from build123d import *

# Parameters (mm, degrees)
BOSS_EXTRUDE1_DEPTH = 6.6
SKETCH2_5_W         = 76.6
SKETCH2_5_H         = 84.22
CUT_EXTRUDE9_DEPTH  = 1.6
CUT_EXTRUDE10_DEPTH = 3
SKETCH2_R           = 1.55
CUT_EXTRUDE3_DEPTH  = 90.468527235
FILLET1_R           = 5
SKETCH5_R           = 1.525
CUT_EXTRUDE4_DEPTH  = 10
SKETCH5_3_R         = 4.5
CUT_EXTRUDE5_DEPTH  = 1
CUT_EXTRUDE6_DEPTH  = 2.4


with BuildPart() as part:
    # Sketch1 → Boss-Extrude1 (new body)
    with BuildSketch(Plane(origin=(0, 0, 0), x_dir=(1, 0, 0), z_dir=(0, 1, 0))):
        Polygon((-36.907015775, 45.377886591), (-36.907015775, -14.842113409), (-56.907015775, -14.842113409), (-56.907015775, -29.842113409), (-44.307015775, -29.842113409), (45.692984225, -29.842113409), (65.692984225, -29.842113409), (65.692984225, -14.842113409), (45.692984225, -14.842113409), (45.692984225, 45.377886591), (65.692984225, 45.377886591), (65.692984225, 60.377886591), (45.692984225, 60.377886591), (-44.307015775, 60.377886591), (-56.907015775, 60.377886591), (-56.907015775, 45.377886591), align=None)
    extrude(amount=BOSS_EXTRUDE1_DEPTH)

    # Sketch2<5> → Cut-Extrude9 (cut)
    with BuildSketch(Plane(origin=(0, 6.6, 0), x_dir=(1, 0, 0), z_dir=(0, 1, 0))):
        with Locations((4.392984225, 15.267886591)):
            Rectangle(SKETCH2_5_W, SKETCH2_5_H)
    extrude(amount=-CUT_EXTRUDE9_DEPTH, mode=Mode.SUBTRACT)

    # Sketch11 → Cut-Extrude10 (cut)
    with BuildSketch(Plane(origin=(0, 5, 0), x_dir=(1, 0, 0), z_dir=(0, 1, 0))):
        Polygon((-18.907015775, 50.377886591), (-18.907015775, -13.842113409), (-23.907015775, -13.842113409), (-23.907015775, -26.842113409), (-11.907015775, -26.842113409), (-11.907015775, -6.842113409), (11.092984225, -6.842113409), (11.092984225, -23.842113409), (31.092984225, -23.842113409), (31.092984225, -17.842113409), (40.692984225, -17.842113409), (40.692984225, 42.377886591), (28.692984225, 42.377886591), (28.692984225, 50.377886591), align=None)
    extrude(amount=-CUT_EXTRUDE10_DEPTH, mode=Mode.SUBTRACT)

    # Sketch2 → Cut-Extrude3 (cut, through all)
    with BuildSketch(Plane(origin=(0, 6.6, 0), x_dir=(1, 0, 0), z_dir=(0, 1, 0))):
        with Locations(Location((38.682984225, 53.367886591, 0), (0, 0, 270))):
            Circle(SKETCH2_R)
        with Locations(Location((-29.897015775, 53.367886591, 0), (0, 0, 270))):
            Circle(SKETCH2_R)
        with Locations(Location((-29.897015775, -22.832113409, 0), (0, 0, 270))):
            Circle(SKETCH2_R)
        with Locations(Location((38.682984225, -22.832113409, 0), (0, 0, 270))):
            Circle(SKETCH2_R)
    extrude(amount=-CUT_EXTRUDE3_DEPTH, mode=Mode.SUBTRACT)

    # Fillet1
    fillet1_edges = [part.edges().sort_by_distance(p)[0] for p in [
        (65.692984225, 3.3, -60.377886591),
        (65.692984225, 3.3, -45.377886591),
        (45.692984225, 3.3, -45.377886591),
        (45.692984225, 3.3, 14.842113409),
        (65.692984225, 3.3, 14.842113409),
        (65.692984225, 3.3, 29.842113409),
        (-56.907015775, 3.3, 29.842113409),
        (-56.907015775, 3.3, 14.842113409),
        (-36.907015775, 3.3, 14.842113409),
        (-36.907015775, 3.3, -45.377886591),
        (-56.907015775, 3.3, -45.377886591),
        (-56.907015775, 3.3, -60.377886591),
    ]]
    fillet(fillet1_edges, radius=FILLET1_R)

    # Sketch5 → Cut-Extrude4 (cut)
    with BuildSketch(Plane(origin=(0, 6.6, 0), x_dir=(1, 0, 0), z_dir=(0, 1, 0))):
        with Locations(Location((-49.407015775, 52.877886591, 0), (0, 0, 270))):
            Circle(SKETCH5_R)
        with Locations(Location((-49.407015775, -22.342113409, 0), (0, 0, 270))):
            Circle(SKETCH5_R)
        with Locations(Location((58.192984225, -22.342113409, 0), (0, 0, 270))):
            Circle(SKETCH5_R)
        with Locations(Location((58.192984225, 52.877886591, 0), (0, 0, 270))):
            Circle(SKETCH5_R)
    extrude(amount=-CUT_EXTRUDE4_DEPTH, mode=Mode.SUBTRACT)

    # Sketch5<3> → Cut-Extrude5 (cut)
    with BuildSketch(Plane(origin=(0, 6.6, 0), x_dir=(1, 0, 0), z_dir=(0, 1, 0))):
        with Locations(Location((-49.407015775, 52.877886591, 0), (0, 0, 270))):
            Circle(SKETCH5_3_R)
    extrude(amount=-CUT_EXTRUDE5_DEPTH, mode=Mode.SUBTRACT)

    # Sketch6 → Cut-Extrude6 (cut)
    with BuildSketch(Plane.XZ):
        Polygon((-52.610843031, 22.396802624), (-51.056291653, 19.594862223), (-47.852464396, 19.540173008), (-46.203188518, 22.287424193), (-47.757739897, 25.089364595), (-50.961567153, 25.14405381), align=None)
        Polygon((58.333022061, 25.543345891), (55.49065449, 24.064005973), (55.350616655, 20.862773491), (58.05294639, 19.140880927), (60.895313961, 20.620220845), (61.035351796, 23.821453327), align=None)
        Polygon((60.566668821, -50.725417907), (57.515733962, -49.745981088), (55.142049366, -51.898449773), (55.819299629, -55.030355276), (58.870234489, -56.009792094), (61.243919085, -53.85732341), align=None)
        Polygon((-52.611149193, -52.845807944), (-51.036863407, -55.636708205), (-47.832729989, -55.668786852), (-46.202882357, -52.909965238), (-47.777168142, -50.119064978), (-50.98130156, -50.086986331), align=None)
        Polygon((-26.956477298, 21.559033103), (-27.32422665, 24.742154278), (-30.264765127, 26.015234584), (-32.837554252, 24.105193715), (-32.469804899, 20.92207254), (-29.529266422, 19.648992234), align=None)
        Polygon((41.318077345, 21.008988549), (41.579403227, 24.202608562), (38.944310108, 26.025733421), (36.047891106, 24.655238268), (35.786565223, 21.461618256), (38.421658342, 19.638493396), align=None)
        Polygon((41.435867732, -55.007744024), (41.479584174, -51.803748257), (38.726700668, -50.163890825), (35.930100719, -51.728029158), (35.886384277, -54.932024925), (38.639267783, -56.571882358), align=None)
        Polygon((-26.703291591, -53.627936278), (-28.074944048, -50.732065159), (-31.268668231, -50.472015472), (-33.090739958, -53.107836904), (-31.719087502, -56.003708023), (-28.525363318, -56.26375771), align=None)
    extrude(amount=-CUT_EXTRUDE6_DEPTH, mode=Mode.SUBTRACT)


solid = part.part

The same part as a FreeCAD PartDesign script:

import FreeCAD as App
import Part
import Sketcher
from FreeCAD import Vector


def edges_at(feature, points):
    """Names of the edges that pass closest to the given points."""
    edges = feature.Shape.Edges
    near = lambda p: min(range(len(edges)), key=lambda i: edges[i].distToShape(Part.Vertex(*p))[0])
    return sorted({f"Edge{near(p) + 1}" for p in points})

doc = App.newDocument("Part")
body = doc.addObject("PartDesign::Body", "Body")

# Sketch on XZ plane
sketch1 = body.newObject("Sketcher::SketchObject", "Sketch")
sketch1.AttachmentSupport = (doc.getObject("XZ_Plane"), [""])
sketch1.MapMode = "FlatFace"
sketch1.addGeometry([
    Part.LineSegment(Vector(-37, -45, 0), Vector(-37, 15, 0)),  # 0
    Part.LineSegment(Vector(-37, 15, 0), Vector(-57, 15, 0)),  # 1
    Part.LineSegment(Vector(-57, 15, 0), Vector(-57, 30, 0)),  # 2
    Part.LineSegment(Vector(-57, 30, 0), Vector(66, 30, 0)),  # 3
    Part.LineSegment(Vector(66, 30, 0), Vector(66, 15, 0)),  # 4
    Part.LineSegment(Vector(66, 15, 0), Vector(46, 15, 0)),  # 5
    Part.LineSegment(Vector(46, 15, 0), Vector(46, -45, 0)),  # 6
    Part.LineSegment(Vector(46, -45, 0), Vector(66, -45, 0)),  # 7
    Part.LineSegment(Vector(66, -45, 0), Vector(66, -60, 0)),  # 8
    Part.LineSegment(Vector(66, -60, 0), Vector(-57, -60, 0)),  # 9
    Part.LineSegment(Vector(-57, -60, 0), Vector(-57, -45, 0)),  # 10
    Part.LineSegment(Vector(-57, -45, 0), Vector(-37, -45, 0)),  # 11
], False)
sketch1.addConstraint([
    Sketcher.Constraint("Coincident", 0, 2, 1, 1),
    Sketcher.Constraint("Coincident", 1, 2, 2, 1),
    Sketcher.Constraint("Coincident", 2, 2, 3, 1),
    Sketcher.Constraint("Coincident", 3, 2, 4, 1),
    Sketcher.Constraint("Coincident", 4, 2, 5, 1),
    Sketcher.Constraint("Coincident", 5, 2, 6, 1),
    Sketcher.Constraint("Coincident", 6, 2, 7, 1),
    Sketcher.Constraint("Coincident", 7, 2, 8, 1),
    Sketcher.Constraint("Coincident", 8, 2, 9, 1),
    Sketcher.Constraint("Coincident", 9, 2, 10, 1),
    Sketcher.Constraint("Coincident", 10, 2, 11, 1),
    Sketcher.Constraint("Coincident", 11, 2, 0, 1),
    Sketcher.Constraint("Vertical", 0),
    Sketcher.Constraint("Horizontal", 1),
    Sketcher.Constraint("Vertical", 2),
    Sketcher.Constraint("Horizontal", 3),
    Sketcher.Constraint("Vertical", 4),
    Sketcher.Constraint("Horizontal", 5),
    Sketcher.Constraint("Vertical", 6),
    Sketcher.Constraint("Horizontal", 7),
    Sketcher.Constraint("Vertical", 8),
    Sketcher.Constraint("Horizontal", 9),
    Sketcher.Constraint("Vertical", 10),
    Sketcher.Constraint("Horizontal", 11),
    Sketcher.Constraint("Horizontal", 1, 2, 4, 2),
    Sketcher.Constraint("Horizontal", 7, 2, 10, 2),
    Sketcher.Constraint("Vertical", 4, 2, 7, 2),
    Sketcher.Constraint("Vertical", 2, 2, 9, 2),
    Sketcher.Constraint("Equal", 1, 5),
    Sketcher.Constraint("Equal", 4, 8),
    Sketcher.Constraint("DistanceX", 1, 2, 1, 1, 20.0),
    Sketcher.Constraint("DistanceY", 2, 1, 2, 2, 15.0),
    Sketcher.Constraint("DistanceX", 3, 1, 3, 2, 122.6),
    Sketcher.Constraint("DistanceY", 0, 1, 0, 2, 60.22),
    Sketcher.Constraint("DistanceX", 0, 2, -1, 1, 36.907016),
    Sketcher.Constraint("DistanceY", -1, 1, 0, 2, 14.842113),
])
pad1 = body.newObject("PartDesign::Pad", "Pad")
pad1.Profile = sketch1
pad1.Length = 6.6
pad1.Reversed = True

# Sketch on XZ plane
sketch2 = body.newObject("Sketcher::SketchObject", "Sketch001")
sketch2.AttachmentSupport = (doc.getObject("XZ_Plane"), [""])
sketch2.MapMode = "FlatFace"
sketch2.AttachmentOffset = App.Placement(Vector(0, 0, -6.6), App.Rotation())
sketch2.addGeometry([
    Part.LineSegment(Vector(-34, -57, 0), Vector(-34, 27, 0)),
    Part.LineSegment(Vector(-34, 27, 0), Vector(43, 27, 0)),
    Part.LineSegment(Vector(43, 27, 0), Vector(43, -57, 0)),
    Part.LineSegment(Vector(43, -57, 0), Vector(-34, -57, 0)),
], False)
sketch2.addConstraint([
    Sketcher.Constraint("Coincident", 0, 2, 1, 1),
    Sketcher.Constraint("Coincident", 1, 2, 2, 1),
    Sketcher.Constraint("Coincident", 2, 2, 3, 1),
    Sketcher.Constraint("Coincident", 3, 2, 0, 1),
    Sketcher.Constraint("Vertical", 0),
    Sketcher.Constraint("Horizontal", 1),
    Sketcher.Constraint("Vertical", 2),
    Sketcher.Constraint("Horizontal", 3),
    Sketcher.Constraint("DistanceX", 1, 1, 1, 2, 76.6),
    Sketcher.Constraint("DistanceY", 0, 1, 0, 2, 84.22),
    Sketcher.Constraint("DistanceX", 0, 2, -1, 1, 33.907016),
    Sketcher.Constraint("DistanceY", -1, 1, 0, 2, 26.842113),
])
pocket1 = body.newObject("PartDesign::Pocket", "Pocket")
pocket1.Profile = sketch2
pocket1.Length = 1.6
pocket1.Reversed = True

# Sketch on XZ plane
sketch3 = body.newObject("Sketcher::SketchObject", "Sketch002")
sketch3.AttachmentSupport = (doc.getObject("XZ_Plane"), [""])
sketch3.MapMode = "FlatFace"
sketch3.AttachmentOffset = App.Placement(Vector(0, 0, -5), App.Rotation())
sketch3.addGeometry([
    Part.LineSegment(Vector(-19, -50, 0), Vector(-19, 14, 0)),  # 0
    Part.LineSegment(Vector(-19, 14, 0), Vector(-24, 14, 0)),  # 1
    Part.LineSegment(Vector(-24, 14, 0), Vector(-24, 27, 0)),  # 2
    Part.LineSegment(Vector(-24, 27, 0), Vector(-12, 27, 0)),  # 3
    Part.LineSegment(Vector(-12, 27, 0), Vector(-12, 7, 0)),  # 4
    Part.LineSegment(Vector(-12, 7, 0), Vector(11, 7, 0)),  # 5
    Part.LineSegment(Vector(11, 7, 0), Vector(11, 24, 0)),  # 6
    Part.LineSegment(Vector(11, 24, 0), Vector(31, 24, 0)),  # 7
    Part.LineSegment(Vector(31, 24, 0), Vector(31, 18, 0)),  # 8
    Part.LineSegment(Vector(31, 18, 0), Vector(41, 18, 0)),  # 9
    Part.LineSegment(Vector(41, 18, 0), Vector(41, -42, 0)),  # 10
    Part.LineSegment(Vector(41, -42, 0), Vector(29, -42, 0)),  # 11
    Part.LineSegment(Vector(29, -42, 0), Vector(29, -50, 0)),  # 12
    Part.LineSegment(Vector(29, -50, 0), Vector(-19, -50, 0)),  # 13
], False)
sketch3.addConstraint([
    Sketcher.Constraint("Coincident", 0, 2, 1, 1),
    Sketcher.Constraint("Coincident", 1, 2, 2, 1),
    Sketcher.Constraint("Coincident", 2, 2, 3, 1),
    Sketcher.Constraint("Coincident", 3, 2, 4, 1),
    Sketcher.Constraint("Coincident", 4, 2, 5, 1),
    Sketcher.Constraint("Coincident", 5, 2, 6, 1),
    Sketcher.Constraint("Coincident", 6, 2, 7, 1),
    Sketcher.Constraint("Coincident", 7, 2, 8, 1),
    Sketcher.Constraint("Coincident", 8, 2, 9, 1),
    Sketcher.Constraint("Coincident", 9, 2, 10, 1),
    Sketcher.Constraint("Coincident", 10, 2, 11, 1),
    Sketcher.Constraint("Coincident", 11, 2, 12, 1),
    Sketcher.Constraint("Coincident", 12, 2, 13, 1),
    Sketcher.Constraint("Coincident", 13, 2, 0, 1),
    Sketcher.Constraint("Vertical", 0),
    Sketcher.Constraint("Horizontal", 1),
    Sketcher.Constraint("Vertical", 2),
    Sketcher.Constraint("Horizontal", 3),
    Sketcher.Constraint("Vertical", 4),
    Sketcher.Constraint("Horizontal", 5),
    Sketcher.Constraint("Vertical", 6),
    Sketcher.Constraint("Horizontal", 7),
    Sketcher.Constraint("Vertical", 8),
    Sketcher.Constraint("Horizontal", 9),
    Sketcher.Constraint("Vertical", 10),
    Sketcher.Constraint("Horizontal", 11),
    Sketcher.Constraint("Vertical", 12),
    Sketcher.Constraint("Horizontal", 13),
    Sketcher.Constraint("Equal", 3, 11),
    Sketcher.Constraint("Equal", 7, 4),
    Sketcher.Constraint("DistanceX", 1, 2, 1, 1, 5.0),
    Sketcher.Constraint("DistanceX", 3, 1, 3, 2, 12.0),
    Sketcher.Constraint("DistanceX", 5, 1, 5, 2, 23.0),
    Sketcher.Constraint("DistanceX", 7, 1, 7, 2, 20.0),
    Sketcher.Constraint("DistanceY", 2, 1, 2, 2, 13.0),
    Sketcher.Constraint("DistanceY", 6, 1, 6, 2, 17.0),
    Sketcher.Constraint("DistanceY", 8, 2, 8, 1, 6.0),
    Sketcher.Constraint("DistanceY", 12, 2, 12, 1, 8.0),
    Sketcher.Constraint("DistanceX", 9, 1, 9, 2, 9.6),
    Sketcher.Constraint("DistanceY", 0, 1, 0, 2, 64.22),
    Sketcher.Constraint("DistanceX", 0, 2, -1, 1, 18.907016),
    Sketcher.Constraint("DistanceY", -1, 1, 0, 2, 13.842113),
])
pocket2 = body.newObject("PartDesign::Pocket", "Pocket001")
pocket2.Profile = sketch3
pocket2.Length = 3
pocket2.Reversed = True

# Sketch on XZ plane
sketch4 = body.newObject("Sketcher::SketchObject", "Sketch003")
sketch4.AttachmentSupport = (doc.getObject("XZ_Plane"), [""])
sketch4.MapMode = "FlatFace"
sketch4.AttachmentOffset = App.Placement(Vector(0, 0, -6.6), App.Rotation())
sketch4.addGeometry([
    Part.Circle(Vector(38.7, -53.4, 0), Vector(0, 0, 1), 1.6),
    Part.Circle(Vector(-29.9, -53.4, 0), Vector(0, 0, 1), 1.6),
    Part.Circle(Vector(-29.9, 22.8, 0), Vector(0, 0, 1), 1.6),
    Part.Circle(Vector(38.7, 22.8, 0), Vector(0, 0, 1), 1.6),
], False)
sketch4.addConstraint([
    Sketcher.Constraint("Equal", 0, 1),
    Sketcher.Constraint("Equal", 1, 2),
    Sketcher.Constraint("Equal", 2, 3),
    Sketcher.Constraint("Horizontal", 0, 3, 1, 3),
    Sketcher.Constraint("Horizontal", 2, 3, 3, 3),
    Sketcher.Constraint("Vertical", 1, 3, 2, 3),
    Sketcher.Constraint("Vertical", 0, 3, 3, 3),
    Sketcher.Constraint("Diameter", 0, 3.1),
    Sketcher.Constraint("DistanceY", 1, 3, 2, 3, 76.2),
    Sketcher.Constraint("DistanceX", 1, 3, 0, 3, 68.58),
    Sketcher.Constraint("DistanceX", -1, 1, 0, 3, 38.682984),
    Sketcher.Constraint("DistanceY", 0, 3, -1, 1, 53.367887),
])
pocket3 = body.newObject("PartDesign::Pocket", "Pocket002")
pocket3.Profile = sketch4
pocket3.Type = "ThroughAll"
pocket3.Reversed = True
doc.recompute()

fillet = body.newObject("PartDesign::Fillet", "Fillet")
fillet.Base = (pocket3, edges_at(pocket3, [
    (65.693, 3.3, -60.378),
    (65.693, 3.3, -45.378),
    (45.693, 3.3, -45.378),
    (45.693, 3.3, 14.842),
    (65.693, 3.3, 14.842),
    (65.693, 3.3, 29.842),
    (-56.907, 3.3, 29.842),
    (-56.907, 3.3, 14.842),
    (-36.907, 3.3, 14.842),
    (-36.907, 3.3, -45.378),
    (-56.907, 3.3, -45.378),
    (-56.907, 3.3, -60.378),
]))
fillet.Radius = 5

# Sketch on XZ plane
sketch5 = body.newObject("Sketcher::SketchObject", "Sketch004")
sketch5.AttachmentSupport = (doc.getObject("XZ_Plane"), [""])
sketch5.MapMode = "FlatFace"
sketch5.AttachmentOffset = App.Placement(Vector(0, 0, -6.6), App.Rotation())
sketch5.addGeometry([
    Part.Circle(Vector(-49.4, -52.9, 0), Vector(0, 0, 1), 1.5),
    Part.Circle(Vector(-49.4, 22.3, 0), Vector(0, 0, 1), 1.5),
    Part.Circle(Vector(58.2, 22.3, 0), Vector(0, 0, 1), 1.5),
    Part.Circle(Vector(58.2, -52.9, 0), Vector(0, 0, 1), 1.5),
], False)
sketch5.addConstraint([
    Sketcher.Constraint("Equal", 0, 1),
    Sketcher.Constraint("Equal", 1, 2),
    Sketcher.Constraint("Equal", 2, 3),
    Sketcher.Constraint("Horizontal", 1, 3, 2, 3),
    Sketcher.Constraint("Horizontal", 0, 3, 3, 3),
    Sketcher.Constraint("Vertical", 0, 3, 1, 3),
    Sketcher.Constraint("Vertical", 2, 3, 3, 3),
    Sketcher.Constraint("Diameter", 0, 3.05),
    Sketcher.Constraint("DistanceX", 1, 3, 2, 3, 107.6),
    Sketcher.Constraint("DistanceY", 0, 3, 1, 3, 75.22),
    Sketcher.Constraint("DistanceX", 0, 3, -1, 1, 49.407016),
    Sketcher.Constraint("DistanceY", 0, 3, -1, 1, 52.877887),
])
pocket4 = body.newObject("PartDesign::Pocket", "Pocket003")
pocket4.Profile = sketch5
pocket4.Length = 10
pocket4.Reversed = True

# Sketch on XZ plane
sketch6 = body.newObject("Sketcher::SketchObject", "Sketch005")
sketch6.AttachmentSupport = (doc.getObject("XZ_Plane"), [""])
sketch6.MapMode = "FlatFace"
sketch6.AttachmentOffset = App.Placement(Vector(0, 0, -6.6), App.Rotation())
sketch6.addGeometry(Part.Circle(Vector(-49.4, -52.9, 0), Vector(0, 0, 1), 4.5), False)
sketch6.addConstraint([
    Sketcher.Constraint("Diameter", 0, 9.0),
    Sketcher.Constraint("DistanceX", 0, 3, -1, 1, 49.407016),
    Sketcher.Constraint("DistanceY", 0, 3, -1, 1, 52.877887),
])
pocket5 = body.newObject("PartDesign::Pocket", "Pocket004")
pocket5.Profile = sketch6
pocket5.Length = 1
pocket5.Reversed = True

# Sketch on XZ plane
sketch7 = body.newObject("Sketcher::SketchObject", "Sketch006")
sketch7.AttachmentSupport = (doc.getObject("XZ_Plane"), [""])
sketch7.MapMode = "FlatFace"
sketch7.addGeometry([
    Part.LineSegment(Vector(-52.610843, 22.396803, 0), Vector(-51.056292, 19.594862, 0)),  # 0
    Part.LineSegment(Vector(-51.056292, 19.594862, 0), Vector(-47.852464, 19.540173, 0)),  # 1
    Part.LineSegment(Vector(-47.852464, 19.540173, 0), Vector(-46.203189, 22.287424, 0)),  # 2
    Part.LineSegment(Vector(-46.203189, 22.287424, 0), Vector(-47.75774, 25.089365, 0)),  # 3
    Part.LineSegment(Vector(-47.75774, 25.089365, 0), Vector(-50.961567, 25.144054, 0)),  # 4
    Part.LineSegment(Vector(-50.961567, 25.144054, 0), Vector(-52.610843, 22.396803, 0)),  # 5
    Part.LineSegment(Vector(58.333022, 25.543346, 0), Vector(55.490654, 24.064006, 0)),  # 6
    Part.LineSegment(Vector(55.490654, 24.064006, 0), Vector(55.350617, 20.862773, 0)),  # 7
    Part.LineSegment(Vector(55.350617, 20.862773, 0), Vector(58.052946, 19.140881, 0)),  # 8
    Part.LineSegment(Vector(58.052946, 19.140881, 0), Vector(60.895314, 20.620221, 0)),  # 9
    Part.LineSegment(Vector(60.895314, 20.620221, 0), Vector(61.035352, 23.821453, 0)),  # 10
    Part.LineSegment(Vector(61.035352, 23.821453, 0), Vector(58.333022, 25.543346, 0)),  # 11
    Part.LineSegment(Vector(60.566669, -50.725418, 0), Vector(57.515734, -49.745981, 0)),  # 12
    Part.LineSegment(Vector(57.515734, -49.745981, 0), Vector(55.142049, -51.89845, 0)),  # 13
    Part.LineSegment(Vector(55.142049, -51.89845, 0), Vector(55.8193, -55.030355, 0)),  # 14
    Part.LineSegment(Vector(55.8193, -55.030355, 0), Vector(58.870234, -56.009792, 0)),  # 15
    Part.LineSegment(Vector(58.870234, -56.009792, 0), Vector(61.243919, -53.857323, 0)),  # 16
    Part.LineSegment(Vector(61.243919, -53.857323, 0), Vector(60.566669, -50.725418, 0)),  # 17
    Part.LineSegment(Vector(-52.611149, -52.845808, 0), Vector(-51.036863, -55.636708, 0)),  # 18
    Part.LineSegment(Vector(-51.036863, -55.636708, 0), Vector(-47.83273, -55.668787, 0)),  # 19
    Part.LineSegment(Vector(-47.83273, -55.668787, 0), Vector(-46.202882, -52.909965, 0)),  # 20
    Part.LineSegment(Vector(-46.202882, -52.909965, 0), Vector(-47.777168, -50.119065, 0)),  # 21
    Part.LineSegment(Vector(-47.777168, -50.119065, 0), Vector(-50.981302, -50.086986, 0)),  # 22
    Part.LineSegment(Vector(-50.981302, -50.086986, 0), Vector(-52.611149, -52.845808, 0)),  # 23
    Part.LineSegment(Vector(-26.956477, 21.559033, 0), Vector(-27.324227, 24.742154, 0)),  # 24
    Part.LineSegment(Vector(-27.324227, 24.742154, 0), Vector(-30.264765, 26.015235, 0)),  # 25
    Part.LineSegment(Vector(-30.264765, 26.015235, 0), Vector(-32.837554, 24.105194, 0)),  # 26
    Part.LineSegment(Vector(-32.837554, 24.105194, 0), Vector(-32.469805, 20.922073, 0)),  # 27
    Part.LineSegment(Vector(-32.469805, 20.922073, 0), Vector(-29.529266, 19.648992, 0)),  # 28
    Part.LineSegment(Vector(-29.529266, 19.648992, 0), Vector(-26.956477, 21.559033, 0)),  # 29
    Part.LineSegment(Vector(41.318077, 21.008989, 0), Vector(41.579403, 24.202609, 0)),  # 30
    Part.LineSegment(Vector(41.579403, 24.202609, 0), Vector(38.94431, 26.025733, 0)),  # 31
    Part.LineSegment(Vector(38.94431, 26.025733, 0), Vector(36.047891, 24.655238, 0)),  # 32
    Part.LineSegment(Vector(36.047891, 24.655238, 0), Vector(35.786565, 21.461618, 0)),  # 33
    Part.LineSegment(Vector(35.786565, 21.461618, 0), Vector(38.421658, 19.638493, 0)),  # 34
    Part.LineSegment(Vector(38.421658, 19.638493, 0), Vector(41.318077, 21.008989, 0)),  # 35
    Part.LineSegment(Vector(41.435868, -55.007744, 0), Vector(41.479584, -51.803748, 0)),  # 36
    Part.LineSegment(Vector(41.479584, -51.803748, 0), Vector(38.726701, -50.163891, 0)),  # 37
    Part.LineSegment(Vector(38.726701, -50.163891, 0), Vector(35.930101, -51.728029, 0)),  # 38
    Part.LineSegment(Vector(35.930101, -51.728029, 0), Vector(35.886384, -54.932025, 0)),  # 39
    Part.LineSegment(Vector(35.886384, -54.932025, 0), Vector(38.639268, -56.571882, 0)),  # 40
    Part.LineSegment(Vector(38.639268, -56.571882, 0), Vector(41.435868, -55.007744, 0)),  # 41
    Part.LineSegment(Vector(-26.703292, -53.627936, 0), Vector(-28.074944, -50.732065, 0)),  # 42
    Part.LineSegment(Vector(-28.074944, -50.732065, 0), Vector(-31.268668, -50.472015, 0)),  # 43
    Part.LineSegment(Vector(-31.268668, -50.472015, 0), Vector(-33.09074, -53.107837, 0)),  # 44
    Part.LineSegment(Vector(-33.09074, -53.107837, 0), Vector(-31.719088, -56.003708, 0)),  # 45
    Part.LineSegment(Vector(-31.719088, -56.003708, 0), Vector(-28.525363, -56.263758, 0)),  # 46
    Part.LineSegment(Vector(-28.525363, -56.263758, 0), Vector(-26.703292, -53.627936, 0)),  # 47
], False)
sketch7.addConstraint([
    Sketcher.Constraint("Coincident", 0, 2, 1, 1),
    Sketcher.Constraint("Coincident", 1, 2, 2, 1),
    Sketcher.Constraint("Coincident", 2, 2, 3, 1),
    Sketcher.Constraint("Coincident", 3, 2, 4, 1),
    Sketcher.Constraint("Coincident", 4, 2, 5, 1),
    Sketcher.Constraint("Coincident", 5, 2, 0, 1),
    Sketcher.Constraint("Coincident", 6, 2, 7, 1),
    Sketcher.Constraint("Coincident", 7, 2, 8, 1),
    Sketcher.Constraint("Coincident", 8, 2, 9, 1),
    Sketcher.Constraint("Coincident", 9, 2, 10, 1),
    Sketcher.Constraint("Coincident", 10, 2, 11, 1),
    Sketcher.Constraint("Coincident", 11, 2, 6, 1),
    Sketcher.Constraint("Coincident", 12, 2, 13, 1),
    Sketcher.Constraint("Coincident", 13, 2, 14, 1),
    Sketcher.Constraint("Coincident", 14, 2, 15, 1),
    Sketcher.Constraint("Coincident", 15, 2, 16, 1),
    Sketcher.Constraint("Coincident", 16, 2, 17, 1),
    Sketcher.Constraint("Coincident", 17, 2, 12, 1),
    Sketcher.Constraint("Coincident", 18, 2, 19, 1),
    Sketcher.Constraint("Coincident", 19, 2, 20, 1),
    Sketcher.Constraint("Coincident", 20, 2, 21, 1),
    Sketcher.Constraint("Coincident", 21, 2, 22, 1),
    Sketcher.Constraint("Coincident", 22, 2, 23, 1),
    Sketcher.Constraint("Coincident", 23, 2, 18, 1),
    Sketcher.Constraint("Coincident", 24, 2, 25, 1),
    Sketcher.Constraint("Coincident", 25, 2, 26, 1),
    Sketcher.Constraint("Coincident", 26, 2, 27, 1),
    Sketcher.Constraint("Coincident", 27, 2, 28, 1),
    Sketcher.Constraint("Coincident", 28, 2, 29, 1),
    Sketcher.Constraint("Coincident", 29, 2, 24, 1),
    Sketcher.Constraint("Coincident", 30, 2, 31, 1),
    Sketcher.Constraint("Coincident", 31, 2, 32, 1),
    Sketcher.Constraint("Coincident", 32, 2, 33, 1),
    Sketcher.Constraint("Coincident", 33, 2, 34, 1),
    Sketcher.Constraint("Coincident", 34, 2, 35, 1),
    Sketcher.Constraint("Coincident", 35, 2, 30, 1),
    Sketcher.Constraint("Coincident", 36, 2, 37, 1),
    Sketcher.Constraint("Coincident", 37, 2, 38, 1),
    Sketcher.Constraint("Coincident", 38, 2, 39, 1),
    Sketcher.Constraint("Coincident", 39, 2, 40, 1),
    Sketcher.Constraint("Coincident", 40, 2, 41, 1),
    Sketcher.Constraint("Coincident", 41, 2, 36, 1),
    Sketcher.Constraint("Coincident", 42, 2, 43, 1),
    Sketcher.Constraint("Coincident", 43, 2, 44, 1),
    Sketcher.Constraint("Coincident", 44, 2, 45, 1),
    Sketcher.Constraint("Coincident", 45, 2, 46, 1),
    Sketcher.Constraint("Coincident", 46, 2, 47, 1),
    Sketcher.Constraint("Coincident", 47, 2, 42, 1),
    Sketcher.Constraint("DistanceY", 42, 2, 21, 2, 0.613),
    Sketcher.Constraint("DistanceX", -1, 1, 14, 2, 55.8193),
    Sketcher.Constraint("DistanceX", 22, 2, -1, 1, 50.981302),
    Sketcher.Constraint("DistanceX", -1, 1, 37, 2, 38.726701),
    Sketcher.Constraint("DistanceX", -1, 1, 38, 2, 35.930101),
    Sketcher.Constraint("DistanceY", 1, 2, 7, 2, 1.3226),
    Sketcher.Constraint("DistanceY", 12, 2, 9, 2, 70.366202),
    Sketcher.Constraint("DistanceX", 12, 2, 15, 2, 1.354501),
    Sketcher.Constraint("DistanceX", 18, 2, 1, 2, 3.184399),
    Sketcher.Constraint("DistanceY", 20, 2, 21, 2, 2.7909),
    Sketcher.Constraint("DistanceY", 19, 2, 22, 2, 5.581801),
    Sketcher.Constraint("DistanceY", 18, 2, 23, 2, 2.7909),
    Sketcher.Constraint("DistanceY", 24, 2, 4, 2, 0.4019),
    Sketcher.Constraint("DistanceX", 1, 2, 25, 2, 17.587699),
    Sketcher.Constraint("DistanceY", 1, 2, 27, 2, 1.3819),
    Sketcher.Constraint("DistanceY", 28, 2, 26, 2, 4.456201),
    Sketcher.Constraint("DistanceX", 25, 2, 28, 2, 0.735499),
    Sketcher.Constraint("DistanceY", 29, 2, 25, 2, 4.456201),
    Sketcher.Constraint("DistanceY", 13, 2, 36, 2, 0.094702),
    Sketcher.Constraint("DistanceY", 15, 2, 37, 2, 5.845901),
    Sketcher.Constraint("DistanceX", 39, 2, 36, 2, 5.5932),
    Sketcher.Constraint("DistanceX", 40, 2, 41, 2, 2.7966),
    Sketcher.Constraint("DistanceX", 21, 2, 43, 2, 16.5085),
    Sketcher.Constraint("DistanceY", 47, 2, 44, 2, 0.520099),
    Sketcher.Constraint("DistanceX", 0, 2, -1, 1, 51.056292),
    Sketcher.Constraint("DistanceX", 2, 2, -1, 1, 46.203189),
    Sketcher.Constraint("DistanceX", 3, 2, -1, 1, 47.75774),
    Sketcher.Constraint("DistanceY", -1, 1, 8, 2, 19.140881),
    Sketcher.Constraint("DistanceY", -1, 1, 9, 2, 20.620221),
    Sketcher.Constraint("DistanceX", -1, 1, 10, 2, 61.035352),
    Sketcher.Constraint("DistanceX", -1, 1, 13, 2, 55.142049),
    Sketcher.Constraint("DistanceY", 13, 2, -1, 1, 51.89845),
    Sketcher.Constraint("DistanceX", -1, 1, 16, 2, 61.243919),
    Sketcher.Constraint("DistanceX", -1, 1, 17, 2, 60.566669),
    Sketcher.Constraint("DistanceY", 18, 2, -1, 1, 55.636708),
    Sketcher.Constraint("DistanceX", 19, 2, -1, 1, 47.83273),
    Sketcher.Constraint("DistanceX", 21, 2, -1, 1, 47.777168),
    Sketcher.Constraint("DistanceX", 23, 2, -1, 1, 52.611149),
    Sketcher.Constraint("DistanceY", -1, 1, 30, 2, 24.202609),
    Sketcher.Constraint("DistanceX", -1, 1, 31, 2, 38.94431),
    Sketcher.Constraint("DistanceX", -1, 1, 32, 2, 36.047891),
    Sketcher.Constraint("DistanceY", -1, 1, 32, 2, 24.655238),
    Sketcher.Constraint("DistanceY", -1, 1, 33, 2, 21.461618),
    Sketcher.Constraint("DistanceX", -1, 1, 34, 2, 38.421658),
    Sketcher.Constraint("DistanceY", -1, 1, 35, 2, 21.008989),
    Sketcher.Constraint("DistanceY", 37, 2, -1, 1, 50.163891),
    Sketcher.Constraint("DistanceY", 38, 2, -1, 1, 51.728029),
    Sketcher.Constraint("DistanceX", 44, 2, -1, 1, 33.09074),
    Sketcher.Constraint("DistanceY", 45, 2, -1, 1, 56.003708),
    Sketcher.Constraint("DistanceX", 47, 2, -1, 1, 26.703292),
    Sketcher.Constraint("DistanceY", 1, 2, 0, 2, 0.054689),
    Sketcher.Constraint("DistanceY", 1, 2, 2, 2, 2.747251),
    Sketcher.Constraint("DistanceY", 2, 2, 3, 2, 2.80194),
    Sketcher.Constraint("DistanceY", 3, 2, 4, 2, 0.054689),
    Sketcher.Constraint("DistanceX", 4, 2, 2, 2, 4.758379),
    Sketcher.Constraint("DistanceX", 5, 2, 0, 2, 1.554551),
    Sketcher.Constraint("DistanceY", 0, 2, 5, 2, 2.80194),
    Sketcher.Constraint("DistanceX", 5, 2, 1, 2, 4.758379),
    Sketcher.Constraint("DistanceY", 2, 2, 6, 2, 1.776582),
    Sketcher.Constraint("DistanceX", 1, 2, 6, 2, 103.343119),
    Sketcher.Constraint("DistanceX", 1, 2, 7, 2, 103.203081),
    Sketcher.Constraint("DistanceX", 7, 2, 8, 2, 2.70233),
    Sketcher.Constraint("DistanceX", 6, 2, 9, 2, 5.404659),
    Sketcher.Constraint("DistanceY", 7, 2, 10, 2, 2.95868),
    Sketcher.Constraint("DistanceX", 11, 2, 10, 2, 2.70233),
    Sketcher.Constraint("DistanceY", 6, 2, 11, 2, 1.47934),
    Sketcher.Constraint("DistanceX", 12, 2, 9, 2, 3.37958),
    Sketcher.Constraint("DistanceY", 14, 2, 7, 2, 75.893129),
    Sketcher.Constraint("DistanceY", 15, 2, 16, 2, 2.152469),
    Sketcher.Constraint("DistanceY", 14, 2, 16, 2, 1.173032),
    Sketcher.Constraint("DistanceY", 13, 2, 17, 2, 1.173032),
    Sketcher.Constraint("DistanceY", 19, 2, 18, 2, 0.032079),
    Sketcher.Constraint("DistanceY", 19, 2, 20, 2, 2.758822),
    Sketcher.Constraint("DistanceX", 18, 2, 20, 2, 4.833981),
    Sketcher.Constraint("DistanceX", 2, 2, 24, 2, 18.878962),
    Sketcher.Constraint("DistanceY", 24, 2, 25, 2, 1.27308),
    Sketcher.Constraint("DistanceX", 26, 2, 25, 2, 2.572789),
    Sketcher.Constraint("DistanceY", 26, 2, 25, 2, 1.910041),
    Sketcher.Constraint("DistanceX", 26, 2, 27, 2, 0.367749),
    Sketcher.Constraint("DistanceX", 28, 2, 29, 2, 2.572789),
    Sketcher.Constraint("DistanceX", 30, 2, 6, 2, 13.911251),
    Sketcher.Constraint("DistanceY", 7, 2, 31, 2, 5.16296),
    Sketcher.Constraint("DistanceX", 33, 2, 30, 2, 5.792838),
    Sketcher.Constraint("DistanceY", 34, 2, 31, 2, 6.38724),
    Sketcher.Constraint("DistanceX", 34, 2, 35, 2, 2.896419),
    Sketcher.Constraint("DistanceX", 36, 2, 12, 2, 16.03615),
    Sketcher.Constraint("DistanceY", 14, 2, 39, 2, 0.09833),
    Sketcher.Constraint("DistanceY", 40, 2, 37, 2, 6.407992),
    Sketcher.Constraint("DistanceX", 40, 2, 13, 2, 16.502782),
    Sketcher.Constraint("DistanceY", 40, 2, 41, 2, 1.564138),
    Sketcher.Constraint("DistanceX", 20, 2, 42, 2, 18.127938),
    Sketcher.Constraint("DistanceY", 42, 2, 43, 2, 0.26005),
    Sketcher.Constraint("DistanceY", 44, 2, 43, 2, 2.635821),
    Sketcher.Constraint("DistanceX", 45, 2, 43, 2, 0.450419),
    Sketcher.Constraint("DistanceY", 46, 2, 45, 2, 0.26005),
    Sketcher.Constraint("DistanceX", 46, 2, 42, 2, 0.450419),
])
pocket6 = body.newObject("PartDesign::Pocket", "Pocket005")
pocket6.Profile = sketch7
pocket6.Length = 2.4

doc.recompute()
